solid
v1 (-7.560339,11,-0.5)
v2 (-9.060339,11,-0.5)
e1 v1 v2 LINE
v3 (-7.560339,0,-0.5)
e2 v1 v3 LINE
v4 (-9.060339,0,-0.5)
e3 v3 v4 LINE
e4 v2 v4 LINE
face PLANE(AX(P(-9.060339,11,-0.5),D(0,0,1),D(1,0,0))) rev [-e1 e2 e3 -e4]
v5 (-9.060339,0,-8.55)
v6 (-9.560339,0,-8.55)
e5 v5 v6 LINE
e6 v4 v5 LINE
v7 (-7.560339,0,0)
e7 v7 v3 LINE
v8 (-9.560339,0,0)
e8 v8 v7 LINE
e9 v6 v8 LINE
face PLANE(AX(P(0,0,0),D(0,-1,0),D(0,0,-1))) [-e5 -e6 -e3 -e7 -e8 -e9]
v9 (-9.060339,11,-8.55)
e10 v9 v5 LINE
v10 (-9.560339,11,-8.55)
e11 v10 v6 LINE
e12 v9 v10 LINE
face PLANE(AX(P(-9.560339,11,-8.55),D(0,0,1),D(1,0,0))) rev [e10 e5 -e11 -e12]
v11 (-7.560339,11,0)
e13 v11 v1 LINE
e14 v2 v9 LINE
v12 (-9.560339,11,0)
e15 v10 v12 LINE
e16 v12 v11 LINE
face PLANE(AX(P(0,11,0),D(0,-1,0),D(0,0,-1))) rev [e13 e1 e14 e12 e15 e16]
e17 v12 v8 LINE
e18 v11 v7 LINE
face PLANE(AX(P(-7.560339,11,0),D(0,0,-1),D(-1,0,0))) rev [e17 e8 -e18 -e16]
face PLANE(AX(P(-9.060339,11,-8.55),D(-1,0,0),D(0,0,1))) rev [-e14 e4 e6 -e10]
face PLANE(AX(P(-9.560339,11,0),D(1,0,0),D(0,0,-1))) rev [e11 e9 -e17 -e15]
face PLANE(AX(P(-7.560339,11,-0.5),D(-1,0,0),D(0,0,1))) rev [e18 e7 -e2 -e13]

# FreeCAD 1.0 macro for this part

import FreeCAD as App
import Part
import Sketcher

doc = App.newDocument("Part")
body = doc.addObject("PartDesign::Body", "Body")

# Sketch on XZ plane
sketch1 = doc.addObject("Sketcher::SketchObject", "Sketch")
body.addObject(sketch1)
sketch1.AttachmentSupport = (doc.XZ_Plane, [""])
sketch1.MapMode = "FlatFace"
sketch1.addGeometry([
    Part.LineSegment(App.Vector(-9.6, 0, 0), App.Vector(-7.6, 0, 0)),  # 0
    Part.LineSegment(App.Vector(-7.6, 0, 0), App.Vector(-7.6, -0.5, 0)),  # 1
    Part.LineSegment(App.Vector(-7.6, -0.5, 0), App.Vector(-9.1, -0.5, 0)),  # 2
    Part.LineSegment(App.Vector(-9.1, -0.5, 0), App.Vector(-9.1, -8.6, 0)),  # 3
    Part.LineSegment(App.Vector(-9.1, -8.6, 0), App.Vector(-9.6, -8.6, 0)),  # 4
    Part.LineSegment(App.Vector(-9.6, -8.6, 0), App.Vector(-9.6, 0, 0)),  # 5
], False)
sketch1.addConstraint([
    Sketcher.Constraint("Coincident", 0, 2, 1, 1),
    Sketcher.Constraint("Coincident", 1, 2, 2, 1),
    Sketcher.Constraint("Coincident", 2, 2, 3, 1),
    Sketcher.Constraint("Coincident", 3, 2, 4, 1),
    Sketcher.Constraint("Coincident", 4, 2, 5, 1),
    Sketcher.Constraint("Coincident", 5, 2, 0, 1),
    Sketcher.Constraint("Horizontal", 0),
    Sketcher.Constraint("Vertical", 1),
    Sketcher.Constraint("Horizontal", 2),
    Sketcher.Constraint("Vertical", 3),
    Sketcher.Constraint("Horizontal", 4),
    Sketcher.Constraint("Vertical", 5),
    Sketcher.Constraint("PointOnObject", 0, 2, -1),
    Sketcher.Constraint("Equal", 4, 1),
    Sketcher.Constraint("DistanceX", 0, 1, 0, 2, 2.0),
    Sketcher.Constraint("DistanceX", 2, 2, 2, 1, 1.5),
    Sketcher.Constraint("DistanceY", 3, 2, 3, 1, 8.05),
    Sketcher.Constraint("DistanceX", 0, 2, -1, 1, 7.560339),
])
pad1 = doc.addObject("PartDesign::Pad", "Pad")
body.addObject(pad1)
pad1.Profile = sketch1
pad1.Length = 11
pad1.Reversed = True

doc.recompute()
